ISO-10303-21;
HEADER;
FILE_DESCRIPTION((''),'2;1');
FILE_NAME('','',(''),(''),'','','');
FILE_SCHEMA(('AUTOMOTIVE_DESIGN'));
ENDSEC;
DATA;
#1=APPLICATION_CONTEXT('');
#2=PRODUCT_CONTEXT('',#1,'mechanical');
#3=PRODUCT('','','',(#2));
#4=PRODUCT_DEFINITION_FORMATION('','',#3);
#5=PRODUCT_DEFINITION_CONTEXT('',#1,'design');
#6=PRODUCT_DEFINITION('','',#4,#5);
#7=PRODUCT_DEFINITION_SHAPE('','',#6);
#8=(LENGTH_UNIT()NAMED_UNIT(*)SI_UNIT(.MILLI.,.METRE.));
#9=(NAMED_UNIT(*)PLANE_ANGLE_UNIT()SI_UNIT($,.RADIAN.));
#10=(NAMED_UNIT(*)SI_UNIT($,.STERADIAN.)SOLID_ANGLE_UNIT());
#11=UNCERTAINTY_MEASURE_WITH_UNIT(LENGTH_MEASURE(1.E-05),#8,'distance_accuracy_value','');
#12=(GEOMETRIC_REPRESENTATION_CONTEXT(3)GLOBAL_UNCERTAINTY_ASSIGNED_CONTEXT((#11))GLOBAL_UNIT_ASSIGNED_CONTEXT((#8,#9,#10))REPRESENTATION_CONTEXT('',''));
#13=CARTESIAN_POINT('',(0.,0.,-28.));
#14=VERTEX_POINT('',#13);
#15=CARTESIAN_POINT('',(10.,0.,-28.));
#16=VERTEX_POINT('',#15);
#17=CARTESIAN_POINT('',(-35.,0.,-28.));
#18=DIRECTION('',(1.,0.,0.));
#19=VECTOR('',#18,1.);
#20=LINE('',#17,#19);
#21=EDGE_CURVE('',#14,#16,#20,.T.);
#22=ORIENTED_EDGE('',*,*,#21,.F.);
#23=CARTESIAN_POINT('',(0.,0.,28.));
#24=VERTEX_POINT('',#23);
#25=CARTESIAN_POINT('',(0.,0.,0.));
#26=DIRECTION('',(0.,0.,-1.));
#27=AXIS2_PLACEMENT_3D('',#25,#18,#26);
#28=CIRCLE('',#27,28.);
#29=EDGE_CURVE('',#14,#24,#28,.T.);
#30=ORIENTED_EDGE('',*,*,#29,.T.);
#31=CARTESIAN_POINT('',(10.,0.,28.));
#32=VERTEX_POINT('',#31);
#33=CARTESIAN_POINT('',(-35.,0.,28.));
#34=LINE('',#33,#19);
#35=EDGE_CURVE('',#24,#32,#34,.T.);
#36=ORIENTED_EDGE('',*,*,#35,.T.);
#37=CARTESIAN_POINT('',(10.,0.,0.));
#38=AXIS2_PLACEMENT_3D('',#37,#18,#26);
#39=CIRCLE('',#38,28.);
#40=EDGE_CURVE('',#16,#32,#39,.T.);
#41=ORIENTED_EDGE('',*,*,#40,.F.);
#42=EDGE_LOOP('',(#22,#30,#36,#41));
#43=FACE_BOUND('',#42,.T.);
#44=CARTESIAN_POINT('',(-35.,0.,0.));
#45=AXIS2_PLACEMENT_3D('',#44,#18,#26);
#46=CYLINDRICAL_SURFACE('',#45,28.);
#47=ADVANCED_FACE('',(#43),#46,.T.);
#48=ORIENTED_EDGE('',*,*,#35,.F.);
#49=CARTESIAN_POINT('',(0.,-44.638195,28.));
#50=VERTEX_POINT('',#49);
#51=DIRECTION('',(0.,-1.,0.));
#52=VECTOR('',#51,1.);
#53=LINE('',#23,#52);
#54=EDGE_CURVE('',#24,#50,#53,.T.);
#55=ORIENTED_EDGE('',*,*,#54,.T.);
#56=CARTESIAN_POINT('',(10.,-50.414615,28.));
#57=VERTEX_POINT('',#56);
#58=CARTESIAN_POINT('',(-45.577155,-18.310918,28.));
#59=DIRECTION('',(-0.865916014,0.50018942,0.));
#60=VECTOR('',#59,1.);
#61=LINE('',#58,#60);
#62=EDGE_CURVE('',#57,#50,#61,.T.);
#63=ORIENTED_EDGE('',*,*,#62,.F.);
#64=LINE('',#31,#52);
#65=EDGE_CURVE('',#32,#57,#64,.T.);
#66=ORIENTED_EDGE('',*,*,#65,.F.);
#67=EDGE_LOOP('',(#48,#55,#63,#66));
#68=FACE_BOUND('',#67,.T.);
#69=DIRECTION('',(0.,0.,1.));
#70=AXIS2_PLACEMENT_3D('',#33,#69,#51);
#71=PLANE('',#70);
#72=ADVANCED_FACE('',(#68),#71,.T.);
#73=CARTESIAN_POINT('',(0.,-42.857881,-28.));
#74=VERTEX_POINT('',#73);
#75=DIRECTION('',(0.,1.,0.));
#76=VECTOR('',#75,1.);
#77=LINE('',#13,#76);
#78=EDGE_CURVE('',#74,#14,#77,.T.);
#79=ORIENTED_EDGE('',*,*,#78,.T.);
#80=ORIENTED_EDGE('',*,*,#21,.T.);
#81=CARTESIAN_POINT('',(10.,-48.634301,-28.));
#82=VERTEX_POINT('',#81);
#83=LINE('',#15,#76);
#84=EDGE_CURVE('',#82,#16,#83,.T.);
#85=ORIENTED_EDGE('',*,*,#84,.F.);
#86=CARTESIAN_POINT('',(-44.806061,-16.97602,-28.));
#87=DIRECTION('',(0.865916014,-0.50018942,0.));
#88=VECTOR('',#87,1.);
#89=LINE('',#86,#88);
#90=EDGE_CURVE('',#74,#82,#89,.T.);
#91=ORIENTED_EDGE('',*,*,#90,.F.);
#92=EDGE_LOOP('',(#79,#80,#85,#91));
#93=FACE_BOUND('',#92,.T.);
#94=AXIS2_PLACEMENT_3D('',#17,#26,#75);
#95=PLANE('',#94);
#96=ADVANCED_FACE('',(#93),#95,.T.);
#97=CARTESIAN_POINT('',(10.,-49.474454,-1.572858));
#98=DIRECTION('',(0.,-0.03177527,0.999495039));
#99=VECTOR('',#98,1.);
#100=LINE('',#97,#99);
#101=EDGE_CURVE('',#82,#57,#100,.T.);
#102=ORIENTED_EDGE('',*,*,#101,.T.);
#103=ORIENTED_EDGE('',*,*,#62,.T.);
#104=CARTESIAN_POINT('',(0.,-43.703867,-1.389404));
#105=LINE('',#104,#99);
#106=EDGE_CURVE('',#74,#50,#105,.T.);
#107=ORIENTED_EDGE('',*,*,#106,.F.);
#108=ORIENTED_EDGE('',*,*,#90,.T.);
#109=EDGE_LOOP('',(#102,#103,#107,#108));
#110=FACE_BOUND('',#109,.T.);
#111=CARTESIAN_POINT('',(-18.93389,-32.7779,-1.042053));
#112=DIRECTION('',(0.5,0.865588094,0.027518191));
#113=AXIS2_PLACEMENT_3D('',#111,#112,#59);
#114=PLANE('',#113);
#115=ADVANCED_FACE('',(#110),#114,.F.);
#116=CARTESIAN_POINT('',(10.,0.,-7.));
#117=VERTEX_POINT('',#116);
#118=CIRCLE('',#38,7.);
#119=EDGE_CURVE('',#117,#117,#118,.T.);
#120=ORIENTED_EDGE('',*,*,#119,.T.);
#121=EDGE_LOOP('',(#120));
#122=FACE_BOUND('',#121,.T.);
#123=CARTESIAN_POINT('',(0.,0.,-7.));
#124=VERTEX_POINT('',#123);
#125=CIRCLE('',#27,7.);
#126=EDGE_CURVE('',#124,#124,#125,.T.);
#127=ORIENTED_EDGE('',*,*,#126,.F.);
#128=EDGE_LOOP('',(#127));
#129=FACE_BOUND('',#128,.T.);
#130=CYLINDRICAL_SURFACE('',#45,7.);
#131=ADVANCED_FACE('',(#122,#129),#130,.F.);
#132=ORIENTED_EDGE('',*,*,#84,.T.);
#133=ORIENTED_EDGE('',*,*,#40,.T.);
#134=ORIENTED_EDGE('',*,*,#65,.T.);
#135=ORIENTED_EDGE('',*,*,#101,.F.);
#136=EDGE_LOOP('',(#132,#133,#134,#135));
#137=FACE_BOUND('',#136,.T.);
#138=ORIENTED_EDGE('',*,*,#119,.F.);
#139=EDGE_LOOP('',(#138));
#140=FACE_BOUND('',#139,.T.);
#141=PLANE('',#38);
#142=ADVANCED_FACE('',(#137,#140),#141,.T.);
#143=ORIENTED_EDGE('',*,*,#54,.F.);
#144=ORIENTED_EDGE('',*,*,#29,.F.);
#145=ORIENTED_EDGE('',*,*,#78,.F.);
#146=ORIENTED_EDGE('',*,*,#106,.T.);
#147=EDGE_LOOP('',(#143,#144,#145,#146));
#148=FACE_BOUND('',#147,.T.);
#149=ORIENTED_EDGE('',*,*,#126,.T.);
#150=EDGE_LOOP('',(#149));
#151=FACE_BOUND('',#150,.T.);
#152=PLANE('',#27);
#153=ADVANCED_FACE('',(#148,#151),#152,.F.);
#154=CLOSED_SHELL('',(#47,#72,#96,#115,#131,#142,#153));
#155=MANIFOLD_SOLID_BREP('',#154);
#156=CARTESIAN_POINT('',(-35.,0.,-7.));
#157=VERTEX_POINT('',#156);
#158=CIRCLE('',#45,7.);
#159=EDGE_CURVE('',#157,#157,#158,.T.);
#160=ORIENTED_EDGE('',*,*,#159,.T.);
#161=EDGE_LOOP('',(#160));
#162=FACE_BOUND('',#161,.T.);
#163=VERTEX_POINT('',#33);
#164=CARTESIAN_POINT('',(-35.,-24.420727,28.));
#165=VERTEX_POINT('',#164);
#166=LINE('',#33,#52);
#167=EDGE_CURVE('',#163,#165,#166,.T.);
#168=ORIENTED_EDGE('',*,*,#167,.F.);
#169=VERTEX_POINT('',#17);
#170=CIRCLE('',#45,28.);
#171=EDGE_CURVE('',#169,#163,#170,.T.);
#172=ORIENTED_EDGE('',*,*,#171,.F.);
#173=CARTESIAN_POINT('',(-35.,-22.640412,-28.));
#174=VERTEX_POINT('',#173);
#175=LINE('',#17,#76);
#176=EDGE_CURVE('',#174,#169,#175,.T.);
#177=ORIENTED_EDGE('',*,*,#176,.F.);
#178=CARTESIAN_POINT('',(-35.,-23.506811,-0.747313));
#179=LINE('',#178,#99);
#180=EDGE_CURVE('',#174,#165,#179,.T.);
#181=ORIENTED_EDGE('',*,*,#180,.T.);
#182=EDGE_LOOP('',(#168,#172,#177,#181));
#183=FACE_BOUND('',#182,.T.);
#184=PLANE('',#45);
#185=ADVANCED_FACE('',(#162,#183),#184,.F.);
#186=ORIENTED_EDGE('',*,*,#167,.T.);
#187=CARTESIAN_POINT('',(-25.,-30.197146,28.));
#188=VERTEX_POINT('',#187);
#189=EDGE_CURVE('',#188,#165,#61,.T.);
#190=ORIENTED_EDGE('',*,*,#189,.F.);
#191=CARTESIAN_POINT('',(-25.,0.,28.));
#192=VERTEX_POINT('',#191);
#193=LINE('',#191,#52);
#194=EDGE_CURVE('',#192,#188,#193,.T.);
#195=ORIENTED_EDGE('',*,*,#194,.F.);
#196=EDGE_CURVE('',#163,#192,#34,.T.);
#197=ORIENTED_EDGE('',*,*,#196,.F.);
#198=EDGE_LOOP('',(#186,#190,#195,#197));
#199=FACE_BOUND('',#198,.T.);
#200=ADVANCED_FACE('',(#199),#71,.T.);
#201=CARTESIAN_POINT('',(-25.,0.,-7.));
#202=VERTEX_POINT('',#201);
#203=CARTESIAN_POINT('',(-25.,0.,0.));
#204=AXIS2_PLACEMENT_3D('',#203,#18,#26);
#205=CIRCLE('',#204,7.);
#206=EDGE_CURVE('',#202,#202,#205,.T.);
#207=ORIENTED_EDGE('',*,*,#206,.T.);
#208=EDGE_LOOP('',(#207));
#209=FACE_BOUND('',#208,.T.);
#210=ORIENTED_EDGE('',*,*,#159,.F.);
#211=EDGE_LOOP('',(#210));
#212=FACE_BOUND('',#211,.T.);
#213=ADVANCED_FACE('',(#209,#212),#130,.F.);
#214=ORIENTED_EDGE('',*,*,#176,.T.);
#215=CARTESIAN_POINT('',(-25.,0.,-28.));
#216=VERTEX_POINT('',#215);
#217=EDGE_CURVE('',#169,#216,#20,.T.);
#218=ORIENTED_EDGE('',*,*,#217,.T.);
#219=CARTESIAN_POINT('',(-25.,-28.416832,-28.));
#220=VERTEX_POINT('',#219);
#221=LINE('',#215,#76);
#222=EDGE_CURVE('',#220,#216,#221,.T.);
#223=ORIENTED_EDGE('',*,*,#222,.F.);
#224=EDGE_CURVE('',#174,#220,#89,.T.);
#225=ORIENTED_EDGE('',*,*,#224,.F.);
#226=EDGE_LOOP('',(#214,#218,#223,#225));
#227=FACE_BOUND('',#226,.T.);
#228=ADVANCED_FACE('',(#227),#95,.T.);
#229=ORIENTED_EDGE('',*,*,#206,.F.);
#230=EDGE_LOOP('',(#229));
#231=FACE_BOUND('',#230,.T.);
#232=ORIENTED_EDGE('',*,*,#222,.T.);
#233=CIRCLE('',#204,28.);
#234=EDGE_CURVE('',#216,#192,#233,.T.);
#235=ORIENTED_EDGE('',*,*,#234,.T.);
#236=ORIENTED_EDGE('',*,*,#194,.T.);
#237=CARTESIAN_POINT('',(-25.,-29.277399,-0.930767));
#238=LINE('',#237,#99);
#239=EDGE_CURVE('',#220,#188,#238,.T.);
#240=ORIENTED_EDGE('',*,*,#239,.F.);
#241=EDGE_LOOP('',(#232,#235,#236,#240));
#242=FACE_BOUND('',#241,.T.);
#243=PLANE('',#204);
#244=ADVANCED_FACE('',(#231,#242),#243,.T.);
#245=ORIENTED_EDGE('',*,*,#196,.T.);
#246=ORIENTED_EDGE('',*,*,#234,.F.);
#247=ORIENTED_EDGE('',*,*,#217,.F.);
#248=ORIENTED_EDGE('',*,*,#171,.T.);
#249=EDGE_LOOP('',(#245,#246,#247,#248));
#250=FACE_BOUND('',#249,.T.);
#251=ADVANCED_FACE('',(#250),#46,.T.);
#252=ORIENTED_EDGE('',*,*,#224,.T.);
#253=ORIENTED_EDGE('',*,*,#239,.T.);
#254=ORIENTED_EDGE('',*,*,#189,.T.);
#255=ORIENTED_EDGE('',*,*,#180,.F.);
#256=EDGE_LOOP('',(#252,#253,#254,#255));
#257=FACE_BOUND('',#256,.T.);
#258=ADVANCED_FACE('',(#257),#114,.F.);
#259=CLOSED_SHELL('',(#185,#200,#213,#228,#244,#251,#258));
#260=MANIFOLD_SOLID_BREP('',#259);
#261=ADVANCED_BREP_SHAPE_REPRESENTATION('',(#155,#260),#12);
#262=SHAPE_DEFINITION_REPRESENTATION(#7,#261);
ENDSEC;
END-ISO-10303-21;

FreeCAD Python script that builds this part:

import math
import FreeCAD as App
import Part
import Sketcher
from FreeCAD import Vector

doc = App.newDocument("Part")
body = doc.addObject("PartDesign::Body", "Body")
body.AllowCompound = True

# Sketch on YZ plane
sketch1 = body.newObject("Sketcher::SketchObject", "Sketch")
sketch1.AttachmentSupport = (doc.getObject("YZ_Plane"), [""])
sketch1.MapMode = "FlatFace"
sketch1.addGeometry([
    Part.LineSegment(Vector(0, 28, 0), Vector(-100, 28, 0)),  # 0
    Part.LineSegment(Vector(-100, 28, 0), Vector(-100, -28, 0)),  # 1
    Part.LineSegment(Vector(-100, -28, 0), Vector(0, -28, 0)),  # 2
    Part.ArcOfCircle(Part.Circle(Vector(0, 0, 0), Vector(0, 0, 1), 28), math.radians(-90), math.radians(90)),  # 3
    Part.Circle(Vector(0, 0, 0), Vector(0, 0, 1), 7),  # 4
], False)
sketch1.addConstraint([
    Sketcher.Constraint("Coincident", 0, 2, 1, 1),
    Sketcher.Constraint("Coincident", 1, 2, 2, 1),
    Sketcher.Constraint("Tangent", 2, 2, 3, 1),
    Sketcher.Constraint("Tangent", 3, 2, 0, 1),
    Sketcher.Constraint("Horizontal", 0),
    Sketcher.Constraint("Vertical", 1),
    Sketcher.Constraint("Horizontal", 2),
    Sketcher.Constraint("Coincident", 3, 3, -1, 1),
    Sketcher.Constraint("Coincident", 4, 3, -1, 1),
    Sketcher.Constraint("Diameter", 4, 14.0),
    Sketcher.Constraint("Radius", 3, 28.0),
    Sketcher.Constraint("DistanceX", 0, 2, 0, 1, 100.0),
])
pad1 = body.newObject("PartDesign::Pad", "Pad")
pad1.Profile = sketch1
pad1.Type = "TwoLengths"
pad1.Length = 10
pad1.Length2 = 35

# Sketch on YZ plane
sketch2 = body.newObject("Sketcher::SketchObject", "Sketch001")
sketch2.AttachmentSupport = (doc.getObject("YZ_Plane"), [""])
sketch2.MapMode = "FlatFace"
sketch2.addGeometry([
    Part.LineSegment(Vector(0, 28, 0), Vector(-100, 28, 0)),  # 0
    Part.LineSegment(Vector(-100, 28, 0), Vector(-100, -28, 0)),  # 1
    Part.LineSegment(Vector(-100, -28, 0), Vector(0, -28, 0)),  # 2
    Part.ArcOfCircle(Part.Circle(Vector(0, 0, 0), Vector(0, 0, 1), 28), math.radians(-90), math.radians(90)),  # 3
    Part.Circle(Vector(0, 0, 0), Vector(0, 0, 1), 7),  # 4
], False)
sketch2.addConstraint([
    Sketcher.Constraint("Coincident", 0, 2, 1, 1),
    Sketcher.Constraint("Coincident", 1, 2, 2, 1),
    Sketcher.Constraint("Tangent", 2, 2, 3, 1),
    Sketcher.Constraint("Tangent", 3, 2, 0, 1),
    Sketcher.Constraint("Horizontal", 0),
    Sketcher.Constraint("Vertical", 1),
    Sketcher.Constraint("Horizontal", 2),
    Sketcher.Constraint("Coincident", 3, 3, -1, 1),
    Sketcher.Constraint("Coincident", 4, 3, -1, 1),
    Sketcher.Constraint("Diameter", 4, 14.0),
    Sketcher.Constraint("Radius", 3, 28.0),
    Sketcher.Constraint("DistanceX", 0, 2, 0, 1, 100.0),
])
pocket1 = body.newObject("PartDesign::Pocket", "Pocket")
pocket1.Profile = sketch2
pocket1.Length = 25

# Sketch on an angled plane
sketch3 = body.newObject("Sketcher::SketchObject", "Sketch002")
sketch3.Placement = App.Placement(Vector(-18.93389, -32.7779, -1.042053), App.Rotation(Vector(-0.75218988, 0.41831009, 0.50914345), Vector(0.429197372, -0.27527063, 0.86024165), Vector(0.5, 0.865588094, 0.027518191), "ZXY"))
sketch3.addGeometry(Part.Circle(Vector(0, 0, 0), Vector(0, 0, 1), 146), False)
sketch3.addConstraint([
    Sketcher.Constraint("Coincident", 0, 3, -1, 1),
    Sketcher.Constraint("Diameter", 0, 291.112332),
])
pocket2 = body.newObject("PartDesign::Pocket", "Pocket001")
pocket2.Profile = sketch3
pocket2.Length = 168

doc.recompute()
